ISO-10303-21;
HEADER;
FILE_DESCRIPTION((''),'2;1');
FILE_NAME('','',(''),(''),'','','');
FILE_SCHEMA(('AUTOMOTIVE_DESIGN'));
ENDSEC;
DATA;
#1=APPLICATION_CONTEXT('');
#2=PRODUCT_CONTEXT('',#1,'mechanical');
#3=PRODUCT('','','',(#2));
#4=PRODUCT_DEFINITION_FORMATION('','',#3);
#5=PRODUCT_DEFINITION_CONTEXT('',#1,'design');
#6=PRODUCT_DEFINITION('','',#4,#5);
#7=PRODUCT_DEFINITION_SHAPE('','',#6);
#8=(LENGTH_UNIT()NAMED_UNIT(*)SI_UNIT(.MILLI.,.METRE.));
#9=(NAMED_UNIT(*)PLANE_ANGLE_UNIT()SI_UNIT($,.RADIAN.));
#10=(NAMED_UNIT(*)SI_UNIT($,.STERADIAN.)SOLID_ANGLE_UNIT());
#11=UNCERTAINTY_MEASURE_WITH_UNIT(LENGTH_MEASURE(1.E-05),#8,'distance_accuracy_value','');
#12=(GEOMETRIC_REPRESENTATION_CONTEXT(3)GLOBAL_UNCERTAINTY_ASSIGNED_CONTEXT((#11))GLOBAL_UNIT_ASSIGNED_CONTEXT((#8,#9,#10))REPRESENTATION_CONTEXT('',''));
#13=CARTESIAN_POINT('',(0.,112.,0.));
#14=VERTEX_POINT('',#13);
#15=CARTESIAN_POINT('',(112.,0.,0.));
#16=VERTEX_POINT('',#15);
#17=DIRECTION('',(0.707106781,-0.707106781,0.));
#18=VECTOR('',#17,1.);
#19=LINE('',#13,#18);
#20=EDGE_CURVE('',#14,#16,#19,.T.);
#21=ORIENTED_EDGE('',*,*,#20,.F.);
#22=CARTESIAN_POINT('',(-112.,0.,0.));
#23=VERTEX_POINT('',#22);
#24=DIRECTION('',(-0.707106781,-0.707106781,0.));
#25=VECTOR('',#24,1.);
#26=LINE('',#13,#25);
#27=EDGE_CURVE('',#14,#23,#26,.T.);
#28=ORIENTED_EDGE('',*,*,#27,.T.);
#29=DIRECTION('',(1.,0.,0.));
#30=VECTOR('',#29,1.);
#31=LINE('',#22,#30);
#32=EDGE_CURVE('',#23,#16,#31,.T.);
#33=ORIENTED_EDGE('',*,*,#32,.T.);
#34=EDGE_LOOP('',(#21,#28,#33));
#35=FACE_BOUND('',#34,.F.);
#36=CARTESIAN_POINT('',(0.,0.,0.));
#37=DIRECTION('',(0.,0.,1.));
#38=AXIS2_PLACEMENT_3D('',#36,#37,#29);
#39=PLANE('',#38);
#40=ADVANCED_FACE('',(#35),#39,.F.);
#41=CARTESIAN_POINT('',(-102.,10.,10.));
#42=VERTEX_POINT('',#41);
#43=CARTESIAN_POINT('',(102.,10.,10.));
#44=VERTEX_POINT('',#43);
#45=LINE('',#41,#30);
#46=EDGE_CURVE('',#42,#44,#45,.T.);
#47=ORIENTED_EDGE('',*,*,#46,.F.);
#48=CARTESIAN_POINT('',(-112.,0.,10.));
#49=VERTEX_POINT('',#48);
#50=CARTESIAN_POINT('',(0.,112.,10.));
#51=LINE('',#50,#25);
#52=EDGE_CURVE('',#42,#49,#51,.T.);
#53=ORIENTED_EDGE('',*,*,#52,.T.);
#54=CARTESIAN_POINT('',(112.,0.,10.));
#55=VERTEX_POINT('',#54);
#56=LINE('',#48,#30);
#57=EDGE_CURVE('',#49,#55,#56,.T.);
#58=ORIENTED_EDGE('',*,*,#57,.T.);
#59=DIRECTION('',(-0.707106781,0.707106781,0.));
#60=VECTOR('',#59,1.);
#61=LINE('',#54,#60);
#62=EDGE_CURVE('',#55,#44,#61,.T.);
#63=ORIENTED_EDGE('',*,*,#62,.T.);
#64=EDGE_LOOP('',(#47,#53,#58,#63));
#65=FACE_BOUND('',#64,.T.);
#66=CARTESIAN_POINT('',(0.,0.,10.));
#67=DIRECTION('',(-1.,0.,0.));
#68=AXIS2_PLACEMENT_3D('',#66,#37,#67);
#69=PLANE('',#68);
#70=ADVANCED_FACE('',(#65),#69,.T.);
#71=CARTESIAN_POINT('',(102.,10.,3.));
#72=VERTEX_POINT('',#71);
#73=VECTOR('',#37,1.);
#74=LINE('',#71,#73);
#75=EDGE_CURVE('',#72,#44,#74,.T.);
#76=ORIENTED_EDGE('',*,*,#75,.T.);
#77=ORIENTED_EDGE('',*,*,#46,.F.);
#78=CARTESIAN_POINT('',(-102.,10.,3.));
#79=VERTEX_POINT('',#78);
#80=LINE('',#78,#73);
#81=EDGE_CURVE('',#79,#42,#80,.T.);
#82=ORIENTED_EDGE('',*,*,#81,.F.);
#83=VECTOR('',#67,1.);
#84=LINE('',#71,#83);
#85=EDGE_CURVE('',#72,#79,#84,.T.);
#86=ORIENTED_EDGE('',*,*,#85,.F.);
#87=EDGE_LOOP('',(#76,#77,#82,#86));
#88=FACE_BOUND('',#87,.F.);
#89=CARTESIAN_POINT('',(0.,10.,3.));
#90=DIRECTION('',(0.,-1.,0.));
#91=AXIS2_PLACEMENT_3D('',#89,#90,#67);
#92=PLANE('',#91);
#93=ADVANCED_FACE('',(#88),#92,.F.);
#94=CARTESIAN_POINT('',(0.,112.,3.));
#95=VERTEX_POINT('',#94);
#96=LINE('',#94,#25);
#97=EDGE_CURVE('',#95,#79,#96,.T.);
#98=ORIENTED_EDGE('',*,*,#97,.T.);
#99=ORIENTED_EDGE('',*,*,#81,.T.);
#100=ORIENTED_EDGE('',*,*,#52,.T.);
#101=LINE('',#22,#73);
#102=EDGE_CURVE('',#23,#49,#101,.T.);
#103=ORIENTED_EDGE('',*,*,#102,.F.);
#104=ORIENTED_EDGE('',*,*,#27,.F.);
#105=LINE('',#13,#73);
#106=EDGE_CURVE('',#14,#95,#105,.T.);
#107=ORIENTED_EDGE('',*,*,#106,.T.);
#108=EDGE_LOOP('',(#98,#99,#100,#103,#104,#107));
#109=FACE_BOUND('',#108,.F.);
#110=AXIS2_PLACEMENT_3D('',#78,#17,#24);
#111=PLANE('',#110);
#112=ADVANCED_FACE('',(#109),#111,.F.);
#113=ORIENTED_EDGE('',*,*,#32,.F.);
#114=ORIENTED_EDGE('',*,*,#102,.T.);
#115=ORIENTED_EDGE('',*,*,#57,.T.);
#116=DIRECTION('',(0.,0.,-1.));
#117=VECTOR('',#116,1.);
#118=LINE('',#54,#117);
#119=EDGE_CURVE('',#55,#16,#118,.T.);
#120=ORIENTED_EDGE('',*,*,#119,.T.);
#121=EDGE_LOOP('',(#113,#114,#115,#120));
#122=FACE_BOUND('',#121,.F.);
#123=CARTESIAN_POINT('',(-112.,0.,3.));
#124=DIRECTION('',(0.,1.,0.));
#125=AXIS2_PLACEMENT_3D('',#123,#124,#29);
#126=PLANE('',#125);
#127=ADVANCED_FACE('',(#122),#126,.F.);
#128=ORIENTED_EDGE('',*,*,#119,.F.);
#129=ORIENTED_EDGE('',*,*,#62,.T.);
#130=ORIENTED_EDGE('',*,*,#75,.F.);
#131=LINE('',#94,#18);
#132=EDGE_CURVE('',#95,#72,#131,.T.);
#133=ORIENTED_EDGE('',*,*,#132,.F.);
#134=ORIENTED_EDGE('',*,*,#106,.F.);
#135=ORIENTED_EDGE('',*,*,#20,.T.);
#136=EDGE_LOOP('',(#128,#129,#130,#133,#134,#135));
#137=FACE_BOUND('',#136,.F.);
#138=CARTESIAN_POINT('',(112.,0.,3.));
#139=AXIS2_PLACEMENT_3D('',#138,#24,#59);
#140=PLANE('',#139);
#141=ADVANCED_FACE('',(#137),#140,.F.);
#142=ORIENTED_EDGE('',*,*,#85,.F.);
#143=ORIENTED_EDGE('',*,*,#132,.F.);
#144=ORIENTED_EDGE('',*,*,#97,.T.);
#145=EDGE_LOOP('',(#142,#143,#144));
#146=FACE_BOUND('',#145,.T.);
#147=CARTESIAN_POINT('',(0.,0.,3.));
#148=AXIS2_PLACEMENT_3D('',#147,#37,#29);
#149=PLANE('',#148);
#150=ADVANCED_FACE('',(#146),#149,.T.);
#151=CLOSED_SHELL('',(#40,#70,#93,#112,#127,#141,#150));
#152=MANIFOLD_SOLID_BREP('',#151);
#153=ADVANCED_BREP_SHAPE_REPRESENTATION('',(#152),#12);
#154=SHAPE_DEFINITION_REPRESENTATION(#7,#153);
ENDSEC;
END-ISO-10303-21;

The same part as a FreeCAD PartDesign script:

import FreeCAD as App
import Part
import Sketcher
from FreeCAD import Vector
Q = App.Units.Quantity

doc = App.newDocument("Part")
body = doc.addObject("PartDesign::Body", "Body")

# Sketch on XY plane
sketch1 = body.newObject("Sketcher::SketchObject", "Sketch")
sketch1.AttachmentSupport = (doc.getObject("XY_Plane"), [""])
sketch1.MapMode = "FlatFace"
sketch1.addGeometry([
    Part.LineSegment(Vector(-112, 0, 0), Vector(112, 0, 0)),
    Part.LineSegment(Vector(112, 0, 0), Vector(0, 112, 0)),
    Part.LineSegment(Vector(0, 112, 0), Vector(-112, 0, 0)),
], False)
sketch1.addConstraint([
    Sketcher.Constraint("Coincident", 0, 2, 1, 1),
    Sketcher.Constraint("Coincident", 1, 2, 2, 1),
    Sketcher.Constraint("Coincident", 2, 2, 0, 1),
    Sketcher.Constraint("Horizontal", 0),
    Sketcher.Constraint("Symmetric", 0, 2, 2, 2, -1, 1),
    Sketcher.Constraint("PointOnObject", 1, 2, -2),
    Sketcher.Constraint("Perpendicular", 1, 2),
    Sketcher.Constraint("DistanceX", -1, 1, 0, 2, Q("112 mm")),
])
pad1 = body.newObject("PartDesign::Pad", "Pad")
pad1.Profile = sketch1
pad1.Length = 3

# Sketch on XY plane
sketch2 = body.newObject("Sketcher::SketchObject", "Sketch001")
sketch2.AttachmentSupport = (doc.getObject("XY_Plane"), [""])
sketch2.MapMode = "FlatFace"
sketch2.AttachmentOffset = App.Placement(Vector(0, 0, 3), App.Rotation())
sketch2.addGeometry([
    Part.LineSegment(Vector(102, 10, 0), Vector(-102, 10, 0)),
    Part.LineSegment(Vector(-102, 10, 0), Vector(-112, 0, 0)),
    Part.LineSegment(Vector(-112, 0, 0), Vector(112, 0, 0)),
    Part.LineSegment(Vector(112, 0, 0), Vector(102, 10, 0)),
], False)
sketch2.addConstraint([
    Sketcher.Constraint("Coincident", 0, 2, 1, 1),
    Sketcher.Constraint("Coincident", 1, 2, 2, 1),
    Sketcher.Constraint("Coincident", 2, 2, 3, 1),
    Sketcher.Constraint("Coincident", 3, 2, 0, 1),
    Sketcher.Constraint("Horizontal", 0),
    Sketcher.Constraint("Horizontal", 2),
    Sketcher.Constraint("Symmetric", 1, 2, 2, 2, -1, 1),
    Sketcher.Constraint("Perpendicular", 1, 3),
    Sketcher.Constraint("Equal", 1, 3),
    Sketcher.Constraint("DistanceY", -1, 1, 0, 2, Q("10 mm")),
    Sketcher.Constraint("DistanceX", 0, 2, 0, 1, Q("204 mm")),
])
pad2 = body.newObject("PartDesign::Pad", "Pad001")
pad2.Profile = sketch2
pad2.Length = 7

doc.recompute()
